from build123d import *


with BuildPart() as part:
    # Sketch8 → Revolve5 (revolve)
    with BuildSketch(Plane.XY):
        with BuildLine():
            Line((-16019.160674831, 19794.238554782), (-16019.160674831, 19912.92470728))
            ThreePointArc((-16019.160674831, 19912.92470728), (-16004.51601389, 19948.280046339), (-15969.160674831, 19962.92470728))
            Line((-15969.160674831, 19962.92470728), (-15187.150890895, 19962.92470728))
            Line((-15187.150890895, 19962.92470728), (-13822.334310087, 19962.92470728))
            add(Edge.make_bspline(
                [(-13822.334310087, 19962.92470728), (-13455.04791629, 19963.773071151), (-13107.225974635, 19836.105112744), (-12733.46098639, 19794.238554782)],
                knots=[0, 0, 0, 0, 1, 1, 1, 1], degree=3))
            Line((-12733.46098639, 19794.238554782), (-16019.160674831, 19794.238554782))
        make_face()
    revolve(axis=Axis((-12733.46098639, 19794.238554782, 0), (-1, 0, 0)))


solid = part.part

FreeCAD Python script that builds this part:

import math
import FreeCAD as App
import Part
import Sketcher
from FreeCAD import Vector

doc = App.newDocument("Part")
body = doc.addObject("PartDesign::Body", "Body")

# Sketch on XY plane
sketch1 = doc.addObject("Sketcher::SketchObject", "Sketch")
body.addObject(sketch1)
sketch1.AttachmentSupport = (doc.XY_Plane, [""])
sketch1.MapMode = "FlatFace"
sketch1.addGeometry([
    Part.LineSegment(Vector(-16019.160675, 19912.924707, 0), Vector(-16019.160675, 19794.238555, 0)),  # 0
    Part.LineSegment(Vector(-16019.160675, 19794.238555, 0), Vector(-12733.460986, 19794.238555, 0)),  # 1
    Part.BSplineCurve([Vector(-13822.33431, 19962.924707, 0), Vector(-13455.047916, 19963.773071, 0), Vector(-13107.225975, 19836.105113, 0), Vector(-12733.460986, 19794.238555, 0)], [4, 4], [0, 1], False, 3, [1, 1, 1, 1], False),  # 2
    Part.LineSegment(Vector(-13822.33431, 19962.924707, 0), Vector(-15969.160675, 19962.924707, 0)),  # 3
    Part.ArcOfCircle(Part.Circle(Vector(-15969.160675, 19912.924707, 0), Vector(0, 0, 1), 50), math.radians(90), math.radians(180)),  # 4
], False)
sketch1.addGeometry(Part.LineSegment(Vector(-12733.460986, 19794.238555, 0), Vector(-16019.160675, 19794.238555, 0)), True)  # axis
sketch1.addConstraint([
    Sketcher.Constraint("Block", 2),
    Sketcher.Constraint("Coincident", 0, 2, 1, 1),
    Sketcher.Constraint("Coincident", 1, 2, 2, 2),
    Sketcher.Constraint("Coincident", 2, 1, 3, 1),
    Sketcher.Constraint("Tangent", 3, 2, 4, 1),
    Sketcher.Constraint("Tangent", 4, 2, 0, 1),
    Sketcher.Constraint("Vertical", 0),
    Sketcher.Constraint("Horizontal", 1),
    Sketcher.Constraint("Horizontal", 3),
    Sketcher.Constraint("Horizontal", 5),
    Sketcher.Constraint("Coincident", 5, 1, 1, 2),
    Sketcher.Constraint("Vertical", 4, 2, 5, 2),
    Sketcher.Constraint("Radius", 4, 50.0),
    Sketcher.Constraint("DistanceX", 1, 1, 1, 2, 3285.699688),
])
revolution = doc.addObject("PartDesign::Revolution", "Revolution")
body.addObject(revolution)
revolution.Profile = sketch1
revolution.ReferenceAxis = (sketch1, ["Axis0"])
revolution.Angle = 360

doc.recompute()
